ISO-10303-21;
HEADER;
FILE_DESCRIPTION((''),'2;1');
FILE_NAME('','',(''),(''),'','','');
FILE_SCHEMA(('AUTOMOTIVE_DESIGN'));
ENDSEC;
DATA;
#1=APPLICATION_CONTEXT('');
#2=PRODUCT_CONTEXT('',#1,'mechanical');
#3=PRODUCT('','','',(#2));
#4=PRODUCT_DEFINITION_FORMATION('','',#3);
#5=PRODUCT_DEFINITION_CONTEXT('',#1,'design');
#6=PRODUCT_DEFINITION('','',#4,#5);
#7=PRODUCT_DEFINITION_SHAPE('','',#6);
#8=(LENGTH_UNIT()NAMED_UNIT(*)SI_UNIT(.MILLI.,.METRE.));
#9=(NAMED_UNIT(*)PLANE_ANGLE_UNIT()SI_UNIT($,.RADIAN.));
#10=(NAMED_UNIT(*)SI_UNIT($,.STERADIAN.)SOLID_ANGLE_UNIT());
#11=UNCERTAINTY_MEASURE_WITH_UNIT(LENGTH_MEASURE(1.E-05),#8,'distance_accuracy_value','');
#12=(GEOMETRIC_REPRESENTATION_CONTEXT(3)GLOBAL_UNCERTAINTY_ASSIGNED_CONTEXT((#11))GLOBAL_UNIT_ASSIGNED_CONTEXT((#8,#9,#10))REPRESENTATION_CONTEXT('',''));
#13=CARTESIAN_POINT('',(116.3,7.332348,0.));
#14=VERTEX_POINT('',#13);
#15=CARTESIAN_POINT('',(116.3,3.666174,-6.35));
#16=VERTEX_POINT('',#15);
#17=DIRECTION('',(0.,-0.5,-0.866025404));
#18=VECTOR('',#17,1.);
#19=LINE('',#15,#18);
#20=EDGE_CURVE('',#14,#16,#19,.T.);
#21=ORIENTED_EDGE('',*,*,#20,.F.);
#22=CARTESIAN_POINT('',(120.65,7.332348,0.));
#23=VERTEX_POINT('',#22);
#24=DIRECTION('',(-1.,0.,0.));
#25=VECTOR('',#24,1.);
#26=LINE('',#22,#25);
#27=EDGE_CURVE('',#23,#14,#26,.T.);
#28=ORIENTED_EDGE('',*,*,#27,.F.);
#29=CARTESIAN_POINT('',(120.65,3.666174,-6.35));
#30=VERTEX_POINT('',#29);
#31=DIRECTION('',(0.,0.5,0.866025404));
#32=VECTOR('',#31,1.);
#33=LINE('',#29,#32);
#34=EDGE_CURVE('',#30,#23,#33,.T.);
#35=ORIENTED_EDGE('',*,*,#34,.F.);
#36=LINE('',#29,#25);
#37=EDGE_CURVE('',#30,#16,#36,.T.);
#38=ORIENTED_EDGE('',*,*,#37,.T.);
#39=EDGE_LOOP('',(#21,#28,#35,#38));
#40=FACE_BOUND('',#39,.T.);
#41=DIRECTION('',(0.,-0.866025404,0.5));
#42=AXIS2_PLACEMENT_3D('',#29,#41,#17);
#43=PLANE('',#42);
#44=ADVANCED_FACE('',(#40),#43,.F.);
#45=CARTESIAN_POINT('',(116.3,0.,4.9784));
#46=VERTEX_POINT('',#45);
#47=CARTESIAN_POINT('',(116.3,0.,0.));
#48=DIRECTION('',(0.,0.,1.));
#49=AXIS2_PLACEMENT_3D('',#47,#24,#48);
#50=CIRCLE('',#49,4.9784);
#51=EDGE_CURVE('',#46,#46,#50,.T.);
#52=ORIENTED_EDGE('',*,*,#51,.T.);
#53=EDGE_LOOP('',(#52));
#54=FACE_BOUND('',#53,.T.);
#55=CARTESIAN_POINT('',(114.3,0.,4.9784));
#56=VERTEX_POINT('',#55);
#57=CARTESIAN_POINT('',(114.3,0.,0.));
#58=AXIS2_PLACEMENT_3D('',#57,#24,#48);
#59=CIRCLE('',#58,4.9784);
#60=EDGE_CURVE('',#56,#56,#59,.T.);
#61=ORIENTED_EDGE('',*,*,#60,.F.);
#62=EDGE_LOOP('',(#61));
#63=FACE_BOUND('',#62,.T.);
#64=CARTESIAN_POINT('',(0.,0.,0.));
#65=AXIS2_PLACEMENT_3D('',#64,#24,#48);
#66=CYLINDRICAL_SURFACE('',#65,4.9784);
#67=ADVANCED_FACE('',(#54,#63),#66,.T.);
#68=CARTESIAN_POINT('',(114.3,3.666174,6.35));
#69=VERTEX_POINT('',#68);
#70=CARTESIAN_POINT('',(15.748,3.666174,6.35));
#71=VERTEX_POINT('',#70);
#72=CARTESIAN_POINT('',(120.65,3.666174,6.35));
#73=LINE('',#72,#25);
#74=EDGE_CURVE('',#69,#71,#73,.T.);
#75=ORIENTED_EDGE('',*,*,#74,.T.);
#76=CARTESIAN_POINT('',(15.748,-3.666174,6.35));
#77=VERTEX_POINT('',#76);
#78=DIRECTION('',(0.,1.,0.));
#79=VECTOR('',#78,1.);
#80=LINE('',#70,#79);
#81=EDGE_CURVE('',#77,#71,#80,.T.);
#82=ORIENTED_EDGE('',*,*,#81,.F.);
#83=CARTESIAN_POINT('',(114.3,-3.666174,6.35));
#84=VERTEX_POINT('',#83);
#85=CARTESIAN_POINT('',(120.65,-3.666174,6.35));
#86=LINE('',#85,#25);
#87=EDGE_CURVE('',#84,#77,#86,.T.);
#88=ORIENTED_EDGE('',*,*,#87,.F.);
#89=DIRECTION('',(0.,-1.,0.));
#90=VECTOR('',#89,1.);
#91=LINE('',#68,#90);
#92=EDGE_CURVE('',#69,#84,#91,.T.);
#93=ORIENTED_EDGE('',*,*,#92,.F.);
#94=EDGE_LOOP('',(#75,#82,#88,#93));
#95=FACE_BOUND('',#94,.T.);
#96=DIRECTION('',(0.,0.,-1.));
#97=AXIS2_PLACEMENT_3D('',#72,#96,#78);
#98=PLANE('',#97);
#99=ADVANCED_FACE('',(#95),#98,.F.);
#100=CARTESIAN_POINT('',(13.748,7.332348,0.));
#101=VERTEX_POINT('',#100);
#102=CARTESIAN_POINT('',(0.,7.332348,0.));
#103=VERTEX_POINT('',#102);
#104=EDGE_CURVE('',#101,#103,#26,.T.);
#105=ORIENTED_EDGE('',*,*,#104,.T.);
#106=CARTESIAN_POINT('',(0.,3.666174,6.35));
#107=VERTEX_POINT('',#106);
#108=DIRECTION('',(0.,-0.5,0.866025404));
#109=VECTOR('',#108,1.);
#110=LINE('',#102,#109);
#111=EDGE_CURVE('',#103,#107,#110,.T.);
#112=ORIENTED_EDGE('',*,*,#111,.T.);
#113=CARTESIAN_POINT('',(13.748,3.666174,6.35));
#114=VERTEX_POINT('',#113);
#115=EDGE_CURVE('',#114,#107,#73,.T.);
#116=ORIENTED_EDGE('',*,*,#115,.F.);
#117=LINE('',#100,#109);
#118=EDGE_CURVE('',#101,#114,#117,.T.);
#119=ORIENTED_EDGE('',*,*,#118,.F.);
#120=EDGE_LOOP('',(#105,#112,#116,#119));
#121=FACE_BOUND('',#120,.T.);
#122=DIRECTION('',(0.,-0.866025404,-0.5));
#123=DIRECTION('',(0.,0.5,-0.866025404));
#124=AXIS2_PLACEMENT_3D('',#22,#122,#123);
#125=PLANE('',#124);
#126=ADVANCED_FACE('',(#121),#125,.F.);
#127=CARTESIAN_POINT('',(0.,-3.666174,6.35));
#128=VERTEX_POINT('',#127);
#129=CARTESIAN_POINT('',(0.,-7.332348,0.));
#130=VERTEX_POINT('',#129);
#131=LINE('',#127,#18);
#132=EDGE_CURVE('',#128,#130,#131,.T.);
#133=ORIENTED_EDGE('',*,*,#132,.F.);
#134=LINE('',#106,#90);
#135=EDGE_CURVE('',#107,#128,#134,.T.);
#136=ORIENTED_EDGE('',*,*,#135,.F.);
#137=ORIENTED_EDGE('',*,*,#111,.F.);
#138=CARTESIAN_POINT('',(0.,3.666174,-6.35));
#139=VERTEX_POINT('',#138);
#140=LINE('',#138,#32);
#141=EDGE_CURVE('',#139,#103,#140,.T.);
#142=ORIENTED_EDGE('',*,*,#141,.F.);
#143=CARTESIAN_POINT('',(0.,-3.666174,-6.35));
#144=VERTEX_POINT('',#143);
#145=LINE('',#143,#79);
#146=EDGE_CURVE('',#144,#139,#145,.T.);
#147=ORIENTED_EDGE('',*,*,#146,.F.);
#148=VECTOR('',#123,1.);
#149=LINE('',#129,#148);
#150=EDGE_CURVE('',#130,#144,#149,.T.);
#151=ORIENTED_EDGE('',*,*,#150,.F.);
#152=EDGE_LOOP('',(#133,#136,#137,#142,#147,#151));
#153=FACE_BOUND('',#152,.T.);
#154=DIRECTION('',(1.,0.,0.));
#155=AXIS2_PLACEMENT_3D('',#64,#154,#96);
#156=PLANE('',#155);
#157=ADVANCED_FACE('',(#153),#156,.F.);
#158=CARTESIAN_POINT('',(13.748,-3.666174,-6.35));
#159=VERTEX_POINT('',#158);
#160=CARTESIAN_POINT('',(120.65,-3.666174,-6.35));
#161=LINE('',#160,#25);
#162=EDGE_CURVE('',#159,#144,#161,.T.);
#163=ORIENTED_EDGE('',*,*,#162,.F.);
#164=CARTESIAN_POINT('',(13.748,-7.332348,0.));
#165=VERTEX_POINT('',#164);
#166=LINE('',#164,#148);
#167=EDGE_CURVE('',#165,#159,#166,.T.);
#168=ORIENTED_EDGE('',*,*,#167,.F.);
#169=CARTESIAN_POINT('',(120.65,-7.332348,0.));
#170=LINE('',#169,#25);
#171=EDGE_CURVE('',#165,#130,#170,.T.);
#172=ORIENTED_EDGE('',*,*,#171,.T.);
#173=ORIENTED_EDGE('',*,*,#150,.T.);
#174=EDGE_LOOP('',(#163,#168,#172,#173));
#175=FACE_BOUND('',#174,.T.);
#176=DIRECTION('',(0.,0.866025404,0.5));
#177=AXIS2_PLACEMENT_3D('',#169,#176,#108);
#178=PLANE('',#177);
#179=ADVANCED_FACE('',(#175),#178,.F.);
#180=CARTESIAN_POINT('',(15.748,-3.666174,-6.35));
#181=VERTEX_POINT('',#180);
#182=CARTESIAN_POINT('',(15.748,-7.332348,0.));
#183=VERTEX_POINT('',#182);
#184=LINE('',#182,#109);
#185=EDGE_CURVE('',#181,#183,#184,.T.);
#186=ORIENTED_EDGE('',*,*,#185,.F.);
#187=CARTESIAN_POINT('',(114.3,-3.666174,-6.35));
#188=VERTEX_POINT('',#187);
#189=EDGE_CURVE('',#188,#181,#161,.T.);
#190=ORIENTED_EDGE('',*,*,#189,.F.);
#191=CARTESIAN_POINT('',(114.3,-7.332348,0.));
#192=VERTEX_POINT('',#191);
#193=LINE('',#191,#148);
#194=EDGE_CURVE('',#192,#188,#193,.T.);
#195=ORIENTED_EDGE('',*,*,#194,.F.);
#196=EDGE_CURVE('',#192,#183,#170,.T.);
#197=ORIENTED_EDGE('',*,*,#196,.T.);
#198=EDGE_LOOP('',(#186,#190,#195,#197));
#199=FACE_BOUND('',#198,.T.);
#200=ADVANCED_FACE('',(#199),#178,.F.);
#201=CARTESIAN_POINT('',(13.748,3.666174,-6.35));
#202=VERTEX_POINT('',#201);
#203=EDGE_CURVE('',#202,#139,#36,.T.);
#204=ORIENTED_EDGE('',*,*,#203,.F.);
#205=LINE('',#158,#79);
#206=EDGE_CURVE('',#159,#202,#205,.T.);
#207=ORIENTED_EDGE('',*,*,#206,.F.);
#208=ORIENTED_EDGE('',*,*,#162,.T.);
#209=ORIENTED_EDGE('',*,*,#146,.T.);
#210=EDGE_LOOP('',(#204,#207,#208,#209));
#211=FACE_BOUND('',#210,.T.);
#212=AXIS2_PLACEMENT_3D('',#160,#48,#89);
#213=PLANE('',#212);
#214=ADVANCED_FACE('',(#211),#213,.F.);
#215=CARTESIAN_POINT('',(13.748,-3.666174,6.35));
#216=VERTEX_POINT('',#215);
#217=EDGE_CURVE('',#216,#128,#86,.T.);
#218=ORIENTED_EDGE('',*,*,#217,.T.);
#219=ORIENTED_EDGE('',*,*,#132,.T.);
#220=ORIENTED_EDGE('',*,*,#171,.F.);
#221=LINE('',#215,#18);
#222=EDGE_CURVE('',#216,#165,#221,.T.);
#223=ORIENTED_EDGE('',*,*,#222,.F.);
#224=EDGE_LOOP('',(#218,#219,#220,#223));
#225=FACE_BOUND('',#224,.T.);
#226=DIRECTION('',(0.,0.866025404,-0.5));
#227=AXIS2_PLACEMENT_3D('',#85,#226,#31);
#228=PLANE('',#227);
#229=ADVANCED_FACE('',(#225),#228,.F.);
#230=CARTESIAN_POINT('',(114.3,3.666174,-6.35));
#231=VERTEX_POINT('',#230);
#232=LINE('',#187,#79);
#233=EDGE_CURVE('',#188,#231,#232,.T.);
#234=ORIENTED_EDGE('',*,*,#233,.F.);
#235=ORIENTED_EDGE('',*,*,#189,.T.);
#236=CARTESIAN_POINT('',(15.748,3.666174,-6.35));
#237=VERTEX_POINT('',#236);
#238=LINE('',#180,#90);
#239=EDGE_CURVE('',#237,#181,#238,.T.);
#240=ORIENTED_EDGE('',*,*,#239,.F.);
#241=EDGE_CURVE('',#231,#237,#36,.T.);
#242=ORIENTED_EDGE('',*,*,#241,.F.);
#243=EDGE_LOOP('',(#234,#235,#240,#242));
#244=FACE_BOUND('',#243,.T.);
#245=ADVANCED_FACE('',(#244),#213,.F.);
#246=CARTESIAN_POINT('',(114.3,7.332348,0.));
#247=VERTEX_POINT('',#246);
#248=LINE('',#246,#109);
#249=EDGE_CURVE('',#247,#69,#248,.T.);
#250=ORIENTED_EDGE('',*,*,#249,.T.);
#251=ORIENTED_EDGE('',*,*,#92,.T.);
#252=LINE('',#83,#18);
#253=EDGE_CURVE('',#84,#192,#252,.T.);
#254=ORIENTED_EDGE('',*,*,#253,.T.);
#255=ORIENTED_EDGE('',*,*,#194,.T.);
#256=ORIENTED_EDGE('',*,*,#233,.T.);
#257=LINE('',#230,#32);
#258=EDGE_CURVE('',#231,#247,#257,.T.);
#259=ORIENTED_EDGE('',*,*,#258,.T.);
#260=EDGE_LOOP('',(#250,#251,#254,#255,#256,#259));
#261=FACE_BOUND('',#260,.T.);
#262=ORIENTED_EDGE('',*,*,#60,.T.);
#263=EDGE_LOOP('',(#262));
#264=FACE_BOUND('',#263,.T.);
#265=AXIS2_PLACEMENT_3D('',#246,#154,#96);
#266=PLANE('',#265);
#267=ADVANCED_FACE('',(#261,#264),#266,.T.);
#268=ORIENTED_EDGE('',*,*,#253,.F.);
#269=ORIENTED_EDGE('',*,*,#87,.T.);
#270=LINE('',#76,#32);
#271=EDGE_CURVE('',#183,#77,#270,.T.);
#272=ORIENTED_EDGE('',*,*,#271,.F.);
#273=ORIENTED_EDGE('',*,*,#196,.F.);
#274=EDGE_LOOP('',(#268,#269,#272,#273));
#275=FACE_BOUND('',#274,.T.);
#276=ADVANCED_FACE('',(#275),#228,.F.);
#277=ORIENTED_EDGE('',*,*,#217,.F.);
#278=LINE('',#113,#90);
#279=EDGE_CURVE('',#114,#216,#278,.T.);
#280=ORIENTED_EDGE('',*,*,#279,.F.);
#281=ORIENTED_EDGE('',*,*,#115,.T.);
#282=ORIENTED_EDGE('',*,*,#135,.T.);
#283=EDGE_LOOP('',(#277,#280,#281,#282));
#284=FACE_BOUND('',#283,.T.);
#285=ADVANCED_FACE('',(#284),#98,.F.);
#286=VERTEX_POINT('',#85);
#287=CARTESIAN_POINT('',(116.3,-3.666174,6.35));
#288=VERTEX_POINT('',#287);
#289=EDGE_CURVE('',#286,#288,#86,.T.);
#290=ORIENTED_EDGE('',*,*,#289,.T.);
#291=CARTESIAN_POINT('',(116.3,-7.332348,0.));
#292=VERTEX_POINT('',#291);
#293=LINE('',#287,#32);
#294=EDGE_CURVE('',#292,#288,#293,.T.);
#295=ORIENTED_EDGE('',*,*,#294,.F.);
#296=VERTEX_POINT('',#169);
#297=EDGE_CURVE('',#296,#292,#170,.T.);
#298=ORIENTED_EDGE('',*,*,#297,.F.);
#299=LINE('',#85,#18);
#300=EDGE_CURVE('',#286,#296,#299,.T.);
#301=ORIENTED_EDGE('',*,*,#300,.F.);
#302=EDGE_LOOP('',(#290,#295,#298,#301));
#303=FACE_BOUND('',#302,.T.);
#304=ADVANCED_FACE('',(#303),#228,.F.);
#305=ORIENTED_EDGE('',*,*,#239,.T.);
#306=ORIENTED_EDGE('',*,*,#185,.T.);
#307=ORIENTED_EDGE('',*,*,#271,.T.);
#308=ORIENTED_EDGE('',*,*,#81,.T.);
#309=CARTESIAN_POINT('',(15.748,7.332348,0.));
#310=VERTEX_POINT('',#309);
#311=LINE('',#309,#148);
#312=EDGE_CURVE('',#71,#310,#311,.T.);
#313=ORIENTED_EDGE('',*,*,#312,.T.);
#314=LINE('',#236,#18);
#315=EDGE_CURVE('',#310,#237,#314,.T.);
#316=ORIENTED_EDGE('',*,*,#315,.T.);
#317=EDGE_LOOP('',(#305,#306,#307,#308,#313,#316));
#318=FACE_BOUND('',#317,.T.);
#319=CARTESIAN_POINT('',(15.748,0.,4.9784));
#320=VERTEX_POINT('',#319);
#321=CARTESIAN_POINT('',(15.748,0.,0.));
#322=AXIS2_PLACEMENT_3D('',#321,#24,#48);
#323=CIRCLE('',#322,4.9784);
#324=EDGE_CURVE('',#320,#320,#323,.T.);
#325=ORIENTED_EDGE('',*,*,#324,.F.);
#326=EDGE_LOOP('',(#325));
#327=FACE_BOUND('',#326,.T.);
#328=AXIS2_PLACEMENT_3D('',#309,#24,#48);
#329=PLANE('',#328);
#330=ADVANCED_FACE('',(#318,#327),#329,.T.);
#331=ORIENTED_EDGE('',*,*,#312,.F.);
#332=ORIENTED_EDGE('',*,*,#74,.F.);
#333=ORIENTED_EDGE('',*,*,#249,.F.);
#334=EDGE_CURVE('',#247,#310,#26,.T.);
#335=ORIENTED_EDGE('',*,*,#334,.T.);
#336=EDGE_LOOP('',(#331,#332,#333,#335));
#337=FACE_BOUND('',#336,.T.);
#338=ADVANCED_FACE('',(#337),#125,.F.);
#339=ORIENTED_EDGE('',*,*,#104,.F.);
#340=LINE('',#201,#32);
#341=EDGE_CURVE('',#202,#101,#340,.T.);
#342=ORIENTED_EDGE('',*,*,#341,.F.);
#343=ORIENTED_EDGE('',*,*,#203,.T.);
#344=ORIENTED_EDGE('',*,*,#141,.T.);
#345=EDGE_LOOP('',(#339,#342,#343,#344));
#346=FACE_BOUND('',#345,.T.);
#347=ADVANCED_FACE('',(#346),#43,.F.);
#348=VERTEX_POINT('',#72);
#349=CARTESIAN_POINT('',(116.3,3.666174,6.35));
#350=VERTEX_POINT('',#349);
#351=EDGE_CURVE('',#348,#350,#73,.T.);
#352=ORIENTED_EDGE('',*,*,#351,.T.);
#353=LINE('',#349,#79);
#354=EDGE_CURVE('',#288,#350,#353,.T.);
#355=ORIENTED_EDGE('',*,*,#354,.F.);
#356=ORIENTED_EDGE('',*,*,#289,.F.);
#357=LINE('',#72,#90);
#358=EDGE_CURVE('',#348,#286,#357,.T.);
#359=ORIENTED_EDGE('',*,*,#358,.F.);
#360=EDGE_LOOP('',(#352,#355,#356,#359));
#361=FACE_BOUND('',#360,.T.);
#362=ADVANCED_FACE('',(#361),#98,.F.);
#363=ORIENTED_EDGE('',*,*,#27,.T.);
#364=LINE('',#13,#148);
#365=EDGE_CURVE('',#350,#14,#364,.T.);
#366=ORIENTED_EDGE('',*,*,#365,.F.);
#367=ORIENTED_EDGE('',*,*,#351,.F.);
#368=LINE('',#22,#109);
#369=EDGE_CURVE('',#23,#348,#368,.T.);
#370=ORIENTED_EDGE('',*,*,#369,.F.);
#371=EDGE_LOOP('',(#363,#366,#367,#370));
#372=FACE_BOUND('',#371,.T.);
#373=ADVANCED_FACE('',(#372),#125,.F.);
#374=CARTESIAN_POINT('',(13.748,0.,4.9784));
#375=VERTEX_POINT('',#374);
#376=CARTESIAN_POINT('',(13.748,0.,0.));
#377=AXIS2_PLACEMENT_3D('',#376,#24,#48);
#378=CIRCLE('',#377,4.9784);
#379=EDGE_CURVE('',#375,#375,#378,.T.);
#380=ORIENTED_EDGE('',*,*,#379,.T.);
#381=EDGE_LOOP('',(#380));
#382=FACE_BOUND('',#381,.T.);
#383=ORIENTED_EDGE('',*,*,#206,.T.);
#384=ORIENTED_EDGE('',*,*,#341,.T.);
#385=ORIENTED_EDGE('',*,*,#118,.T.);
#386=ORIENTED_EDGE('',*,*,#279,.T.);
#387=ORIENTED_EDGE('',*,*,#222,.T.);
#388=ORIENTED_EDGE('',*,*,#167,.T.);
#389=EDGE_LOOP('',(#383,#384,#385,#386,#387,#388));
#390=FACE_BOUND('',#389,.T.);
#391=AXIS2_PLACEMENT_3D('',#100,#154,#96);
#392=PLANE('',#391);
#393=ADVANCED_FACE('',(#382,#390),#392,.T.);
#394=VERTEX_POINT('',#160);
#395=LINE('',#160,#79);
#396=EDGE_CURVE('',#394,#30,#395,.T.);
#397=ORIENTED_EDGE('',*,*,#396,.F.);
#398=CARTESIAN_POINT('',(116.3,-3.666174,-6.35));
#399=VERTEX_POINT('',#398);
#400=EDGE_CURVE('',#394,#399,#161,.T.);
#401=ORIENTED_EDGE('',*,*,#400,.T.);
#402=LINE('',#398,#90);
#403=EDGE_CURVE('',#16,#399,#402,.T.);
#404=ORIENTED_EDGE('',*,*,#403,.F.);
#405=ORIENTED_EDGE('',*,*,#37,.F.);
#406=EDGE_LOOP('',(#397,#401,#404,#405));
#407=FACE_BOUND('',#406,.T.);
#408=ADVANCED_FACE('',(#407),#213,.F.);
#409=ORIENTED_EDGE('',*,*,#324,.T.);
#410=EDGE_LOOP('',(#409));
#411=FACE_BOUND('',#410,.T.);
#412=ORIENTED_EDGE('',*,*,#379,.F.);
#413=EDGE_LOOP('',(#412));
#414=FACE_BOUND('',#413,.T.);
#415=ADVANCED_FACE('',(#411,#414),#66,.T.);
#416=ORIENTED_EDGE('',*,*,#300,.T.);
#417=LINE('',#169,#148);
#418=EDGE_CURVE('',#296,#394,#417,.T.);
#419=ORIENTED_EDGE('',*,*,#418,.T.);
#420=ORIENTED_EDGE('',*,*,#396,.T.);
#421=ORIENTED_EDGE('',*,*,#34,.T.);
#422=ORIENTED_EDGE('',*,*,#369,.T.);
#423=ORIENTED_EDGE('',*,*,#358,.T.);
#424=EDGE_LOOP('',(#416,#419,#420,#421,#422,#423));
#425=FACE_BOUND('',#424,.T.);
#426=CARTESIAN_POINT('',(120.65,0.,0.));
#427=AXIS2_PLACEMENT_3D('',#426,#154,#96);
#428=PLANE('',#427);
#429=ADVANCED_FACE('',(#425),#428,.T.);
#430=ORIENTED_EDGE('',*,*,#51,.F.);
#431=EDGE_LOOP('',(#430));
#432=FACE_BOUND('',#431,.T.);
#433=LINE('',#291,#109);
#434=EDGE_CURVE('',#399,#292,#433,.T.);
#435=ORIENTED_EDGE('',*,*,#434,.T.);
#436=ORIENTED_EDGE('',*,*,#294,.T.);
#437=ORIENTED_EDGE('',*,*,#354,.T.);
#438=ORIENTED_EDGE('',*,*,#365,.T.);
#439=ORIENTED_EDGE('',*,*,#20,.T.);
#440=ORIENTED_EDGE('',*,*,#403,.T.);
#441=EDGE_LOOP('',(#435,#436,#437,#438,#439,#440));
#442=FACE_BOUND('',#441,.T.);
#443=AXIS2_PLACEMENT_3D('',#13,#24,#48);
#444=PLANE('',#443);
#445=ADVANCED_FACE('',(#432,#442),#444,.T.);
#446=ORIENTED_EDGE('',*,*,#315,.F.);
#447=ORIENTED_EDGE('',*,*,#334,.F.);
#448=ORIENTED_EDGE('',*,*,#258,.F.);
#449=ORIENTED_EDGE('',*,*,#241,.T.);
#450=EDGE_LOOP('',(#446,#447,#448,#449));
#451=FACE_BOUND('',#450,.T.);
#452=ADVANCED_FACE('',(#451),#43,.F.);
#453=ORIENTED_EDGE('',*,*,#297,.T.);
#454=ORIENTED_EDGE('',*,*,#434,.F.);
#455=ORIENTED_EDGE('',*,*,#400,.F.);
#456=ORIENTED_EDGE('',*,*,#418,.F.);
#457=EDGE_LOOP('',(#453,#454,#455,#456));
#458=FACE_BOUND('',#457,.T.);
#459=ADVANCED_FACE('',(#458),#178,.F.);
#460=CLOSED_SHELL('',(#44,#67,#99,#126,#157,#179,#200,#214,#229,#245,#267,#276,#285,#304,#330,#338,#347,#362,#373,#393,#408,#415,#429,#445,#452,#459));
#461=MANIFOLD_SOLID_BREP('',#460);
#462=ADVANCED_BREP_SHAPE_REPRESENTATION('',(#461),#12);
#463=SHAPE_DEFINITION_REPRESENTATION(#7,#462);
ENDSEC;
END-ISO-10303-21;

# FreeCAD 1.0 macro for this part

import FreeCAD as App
import Part
import Sketcher
from FreeCAD import Vector
Q = App.Units.Quantity


def add_polygon(sketch, points):
    """Adds a closed chain of lines whose ends are joined by coincident constraints."""
    first, n = sketch.GeometryCount, len(points)
    for a, b in zip(points, points[1:] + points[:1]):
        sketch.addGeometry(Part.LineSegment(App.Vector(*a, 0), App.Vector(*b, 0)), False)
    for i in range(n):
        sketch.addConstraint(Sketcher.Constraint("Coincident", first + i, 2, first + (i + 1) % n, 1))

doc = App.newDocument("Part")
params = doc.addObject("Spreadsheet::Sheet", "Params")
for row, (alias, value) in enumerate([
    ("pad1_length", "120.65 mm"),
    ("sketch2_width", "2 mm"),
    ("groove_angle", "360 deg"),
], start=1):
    params.set(f"A{row}", alias)
    params.set(f"B{row}", "=" + value)
    params.setAlias(f"B{row}", alias)

body = doc.addObject("PartDesign::Body", "Body")

sketch1 = body.newObject("Sketcher::SketchObject", "Sketch")
sketch1.AttachmentSupport = (doc.getObject("YZ_Plane"), [""])
sketch1.MapMode = "FlatFace"
add_polygon(sketch1, [(7, 0), (4, 6), (-4, 6), (-7, 0), (-4, -6), (4, -6)])
sketch1.addConstraint([
    Sketcher.Constraint("Horizontal", 1),
    Sketcher.Constraint("Horizontal", 4),
    Sketcher.Constraint("Symmetric", 0, 2, 3, 2, -1, 1),
    Sketcher.Constraint("Symmetric", 2, 2, 5, 2, -1, 1),
    Sketcher.Constraint("PointOnObject", 2, 2, -1),
    Sketcher.Constraint("Parallel", 2, 5),
    Sketcher.Constraint("Vertical", 1, 2, 3, 2),
    Sketcher.Constraint("Angle", 0, Q("120 deg")),
    Sketcher.Constraint("DistanceY", 3, 2, 1, 2, 12.7),
    Sketcher.Constraint("DistanceX", 1, 2, 1, 1, 7.332348),
])
pad1 = body.newObject("PartDesign::Pad", "Pad")
pad1.Profile = sketch1
pad1.setExpression("Length", "Params.pad1_length")

sketch2 = body.newObject("Sketcher::SketchObject", "Sketch001")
sketch2.AttachmentSupport = (doc.getObject("XY_Plane"), [""])
sketch2.MapMode = "FlatFace"
add_polygon(sketch2, [(114.3, 7.3), (114.3, 5), (116.3, 5), (116.3, 7.3)])
add_polygon(sketch2, [(13.7, 7.3), (13.7, 5), (15.7, 5), (15.7, 7.3)])
sketch2.addConstraint([
    Sketcher.Constraint("Vertical", 0),
    Sketcher.Constraint("Horizontal", 1),
    Sketcher.Constraint("Vertical", 2),
    Sketcher.Constraint("Horizontal", 3),
    Sketcher.Constraint("Vertical", 4),
    Sketcher.Constraint("Horizontal", 5),
    Sketcher.Constraint("Vertical", 6),
    Sketcher.Constraint("Horizontal", 7),
    Sketcher.Constraint("Horizontal", 1, 2, 4, 2),
    Sketcher.Constraint("Horizontal", 3, 2, 6, 2),
    Sketcher.Constraint("Equal", 3, 5),
    Sketcher.Constraint("DistanceX", 1, 1, 1, 2, 2.0),
    Sketcher.Constraint("DistanceX", -1, 1, 0, 2, 114.3),
    Sketcher.Constraint("DistanceX", -1, 1, 4, 2, 13.748),
    Sketcher.Constraint("DistanceY", 0, 2, 0, 1, 2.353948),
    Sketcher.Constraint("DistanceY", -1, 1, 0, 2, 4.9784),
])
sketch2.setExpression("Constraints[19]", "Params.sketch2_width")
groove = body.newObject("PartDesign::Groove", "Groove")
groove.Profile = sketch2
groove.ReferenceAxis = (sketch2, ["H_Axis"])
groove.setExpression("Angle", "Params.groove_angle")

doc.recompute()
